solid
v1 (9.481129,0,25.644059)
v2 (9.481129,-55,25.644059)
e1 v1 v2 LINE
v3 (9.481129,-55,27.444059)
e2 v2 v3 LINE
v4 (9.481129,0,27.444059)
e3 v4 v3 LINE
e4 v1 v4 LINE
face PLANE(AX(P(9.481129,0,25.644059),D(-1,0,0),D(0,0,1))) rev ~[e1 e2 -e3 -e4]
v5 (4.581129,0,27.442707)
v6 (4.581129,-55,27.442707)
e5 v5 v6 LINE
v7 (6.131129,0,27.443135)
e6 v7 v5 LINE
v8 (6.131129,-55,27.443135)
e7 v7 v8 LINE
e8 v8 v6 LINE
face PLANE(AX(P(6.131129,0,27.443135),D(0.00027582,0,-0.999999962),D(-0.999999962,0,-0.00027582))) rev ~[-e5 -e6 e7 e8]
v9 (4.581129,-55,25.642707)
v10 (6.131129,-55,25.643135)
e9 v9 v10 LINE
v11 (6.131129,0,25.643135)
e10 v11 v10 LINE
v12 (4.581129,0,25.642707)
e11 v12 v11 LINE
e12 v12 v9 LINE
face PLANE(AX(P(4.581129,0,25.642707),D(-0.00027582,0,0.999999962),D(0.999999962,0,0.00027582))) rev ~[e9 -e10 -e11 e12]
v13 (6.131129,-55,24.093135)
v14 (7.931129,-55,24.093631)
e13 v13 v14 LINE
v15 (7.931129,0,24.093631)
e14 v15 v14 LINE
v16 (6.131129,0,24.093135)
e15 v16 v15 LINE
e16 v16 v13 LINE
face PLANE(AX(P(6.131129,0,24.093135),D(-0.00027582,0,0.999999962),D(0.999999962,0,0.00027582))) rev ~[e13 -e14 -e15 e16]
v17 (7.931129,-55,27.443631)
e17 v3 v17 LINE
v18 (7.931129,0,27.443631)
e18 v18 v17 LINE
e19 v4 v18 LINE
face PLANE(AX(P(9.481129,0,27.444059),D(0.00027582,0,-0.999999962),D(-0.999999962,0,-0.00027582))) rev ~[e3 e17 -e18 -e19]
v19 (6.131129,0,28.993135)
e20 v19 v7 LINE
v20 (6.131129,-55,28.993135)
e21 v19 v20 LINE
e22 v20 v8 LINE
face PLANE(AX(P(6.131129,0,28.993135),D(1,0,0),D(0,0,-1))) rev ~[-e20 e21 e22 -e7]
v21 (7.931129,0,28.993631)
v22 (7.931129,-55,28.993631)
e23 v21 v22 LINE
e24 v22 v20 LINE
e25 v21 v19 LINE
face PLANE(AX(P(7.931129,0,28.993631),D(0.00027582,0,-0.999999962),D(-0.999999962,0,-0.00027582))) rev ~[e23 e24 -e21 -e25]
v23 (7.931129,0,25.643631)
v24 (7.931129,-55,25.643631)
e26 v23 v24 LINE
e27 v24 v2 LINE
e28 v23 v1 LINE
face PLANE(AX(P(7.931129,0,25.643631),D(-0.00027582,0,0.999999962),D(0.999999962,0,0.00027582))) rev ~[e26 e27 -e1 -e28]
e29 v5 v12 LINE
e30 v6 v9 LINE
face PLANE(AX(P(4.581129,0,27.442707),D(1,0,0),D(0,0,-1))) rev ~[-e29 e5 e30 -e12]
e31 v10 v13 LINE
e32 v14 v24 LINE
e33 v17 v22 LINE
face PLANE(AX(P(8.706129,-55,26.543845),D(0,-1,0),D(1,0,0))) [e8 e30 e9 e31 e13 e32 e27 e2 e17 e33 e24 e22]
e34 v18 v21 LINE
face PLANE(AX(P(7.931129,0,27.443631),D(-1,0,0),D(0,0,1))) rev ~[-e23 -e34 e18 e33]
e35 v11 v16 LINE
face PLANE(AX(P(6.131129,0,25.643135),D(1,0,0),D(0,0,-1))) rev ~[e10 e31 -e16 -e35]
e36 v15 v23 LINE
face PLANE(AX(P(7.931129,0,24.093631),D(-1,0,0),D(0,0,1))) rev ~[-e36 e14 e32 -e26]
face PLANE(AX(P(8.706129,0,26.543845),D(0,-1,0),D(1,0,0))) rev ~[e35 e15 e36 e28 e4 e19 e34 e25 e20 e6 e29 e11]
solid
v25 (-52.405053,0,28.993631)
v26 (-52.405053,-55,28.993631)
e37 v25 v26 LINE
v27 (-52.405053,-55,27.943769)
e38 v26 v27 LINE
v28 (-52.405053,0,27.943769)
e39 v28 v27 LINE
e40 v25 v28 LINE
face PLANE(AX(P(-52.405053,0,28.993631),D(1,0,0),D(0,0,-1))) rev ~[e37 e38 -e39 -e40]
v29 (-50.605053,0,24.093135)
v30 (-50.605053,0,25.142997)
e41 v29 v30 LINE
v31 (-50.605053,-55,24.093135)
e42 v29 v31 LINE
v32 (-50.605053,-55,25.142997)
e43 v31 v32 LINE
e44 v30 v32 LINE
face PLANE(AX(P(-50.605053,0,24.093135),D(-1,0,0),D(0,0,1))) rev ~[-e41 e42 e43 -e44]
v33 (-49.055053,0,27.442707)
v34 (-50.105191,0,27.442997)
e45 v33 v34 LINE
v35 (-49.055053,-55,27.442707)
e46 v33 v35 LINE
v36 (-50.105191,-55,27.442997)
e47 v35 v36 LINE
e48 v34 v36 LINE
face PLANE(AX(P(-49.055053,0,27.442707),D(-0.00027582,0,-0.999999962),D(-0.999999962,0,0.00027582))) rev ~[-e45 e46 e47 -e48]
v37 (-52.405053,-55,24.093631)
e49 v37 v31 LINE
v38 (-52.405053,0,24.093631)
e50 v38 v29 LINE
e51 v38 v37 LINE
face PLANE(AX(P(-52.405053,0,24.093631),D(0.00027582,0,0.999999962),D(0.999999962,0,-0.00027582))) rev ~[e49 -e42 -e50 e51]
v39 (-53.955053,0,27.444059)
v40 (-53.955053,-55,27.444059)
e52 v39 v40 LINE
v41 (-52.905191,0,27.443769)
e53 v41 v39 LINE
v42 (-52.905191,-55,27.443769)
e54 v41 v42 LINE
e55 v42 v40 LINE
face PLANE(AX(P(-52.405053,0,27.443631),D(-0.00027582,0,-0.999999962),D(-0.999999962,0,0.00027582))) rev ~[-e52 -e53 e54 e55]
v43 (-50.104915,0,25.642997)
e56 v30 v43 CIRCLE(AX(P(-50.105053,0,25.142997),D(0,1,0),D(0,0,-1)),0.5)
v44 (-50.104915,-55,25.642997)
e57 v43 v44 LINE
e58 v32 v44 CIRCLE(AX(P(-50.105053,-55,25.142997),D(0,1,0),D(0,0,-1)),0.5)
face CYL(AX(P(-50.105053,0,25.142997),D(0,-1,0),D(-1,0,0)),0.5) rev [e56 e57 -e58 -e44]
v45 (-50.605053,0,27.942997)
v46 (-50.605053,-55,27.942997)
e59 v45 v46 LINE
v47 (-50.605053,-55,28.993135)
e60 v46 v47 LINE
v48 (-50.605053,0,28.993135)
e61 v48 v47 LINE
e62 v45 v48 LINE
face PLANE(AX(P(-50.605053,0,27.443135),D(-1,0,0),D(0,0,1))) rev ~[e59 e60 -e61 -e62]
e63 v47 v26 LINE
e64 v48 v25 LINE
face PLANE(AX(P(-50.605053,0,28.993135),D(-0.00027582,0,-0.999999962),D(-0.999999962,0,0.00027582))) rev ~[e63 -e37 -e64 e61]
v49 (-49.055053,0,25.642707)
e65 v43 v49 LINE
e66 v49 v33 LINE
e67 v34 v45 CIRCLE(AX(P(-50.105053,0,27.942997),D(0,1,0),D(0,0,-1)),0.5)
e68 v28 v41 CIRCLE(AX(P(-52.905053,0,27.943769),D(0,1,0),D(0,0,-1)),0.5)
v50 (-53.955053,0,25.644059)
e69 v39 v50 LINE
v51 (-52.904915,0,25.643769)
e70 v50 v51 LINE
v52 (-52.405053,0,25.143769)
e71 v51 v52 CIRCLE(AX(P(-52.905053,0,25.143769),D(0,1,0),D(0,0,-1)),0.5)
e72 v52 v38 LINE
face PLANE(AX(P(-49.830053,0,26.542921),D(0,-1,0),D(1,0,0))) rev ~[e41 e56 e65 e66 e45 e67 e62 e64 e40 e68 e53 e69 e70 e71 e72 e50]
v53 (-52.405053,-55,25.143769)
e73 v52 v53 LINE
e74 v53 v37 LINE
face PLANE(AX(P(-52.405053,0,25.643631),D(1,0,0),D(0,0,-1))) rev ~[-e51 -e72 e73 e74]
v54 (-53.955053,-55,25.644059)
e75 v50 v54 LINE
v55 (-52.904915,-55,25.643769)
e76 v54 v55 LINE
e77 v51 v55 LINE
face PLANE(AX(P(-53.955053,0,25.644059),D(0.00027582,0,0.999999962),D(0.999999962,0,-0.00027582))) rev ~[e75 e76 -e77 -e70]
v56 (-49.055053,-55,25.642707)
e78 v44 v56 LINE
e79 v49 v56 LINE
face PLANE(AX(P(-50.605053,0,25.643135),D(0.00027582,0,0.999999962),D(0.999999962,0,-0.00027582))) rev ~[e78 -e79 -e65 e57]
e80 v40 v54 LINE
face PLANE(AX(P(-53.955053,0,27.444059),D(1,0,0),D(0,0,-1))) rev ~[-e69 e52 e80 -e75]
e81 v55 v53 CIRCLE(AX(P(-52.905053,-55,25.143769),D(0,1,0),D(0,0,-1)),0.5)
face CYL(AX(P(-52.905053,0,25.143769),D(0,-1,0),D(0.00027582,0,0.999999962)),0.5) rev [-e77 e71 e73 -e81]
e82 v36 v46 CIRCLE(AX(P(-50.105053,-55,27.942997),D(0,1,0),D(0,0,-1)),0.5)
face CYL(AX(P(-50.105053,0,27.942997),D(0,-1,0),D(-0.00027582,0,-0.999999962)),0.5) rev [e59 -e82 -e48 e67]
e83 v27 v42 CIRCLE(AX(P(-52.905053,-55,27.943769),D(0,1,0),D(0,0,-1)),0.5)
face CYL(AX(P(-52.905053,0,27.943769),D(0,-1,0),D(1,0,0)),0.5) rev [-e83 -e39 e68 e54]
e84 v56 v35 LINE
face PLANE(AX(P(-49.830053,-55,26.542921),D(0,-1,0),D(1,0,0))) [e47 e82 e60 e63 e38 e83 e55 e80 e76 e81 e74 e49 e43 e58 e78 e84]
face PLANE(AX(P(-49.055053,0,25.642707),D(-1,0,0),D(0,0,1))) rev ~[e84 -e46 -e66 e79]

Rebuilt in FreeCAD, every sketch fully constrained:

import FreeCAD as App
import Part
import Sketcher
Q = App.Units.Quantity


def edges_at(feature, points):
    """Names of the edges that pass closest to the given points."""
    edges = feature.Shape.Edges
    near = lambda p: min(range(len(edges)), key=lambda i: edges[i].distToShape(Part.Vertex(*p))[0])
    return sorted({f"Edge{near(p) + 1}" for p in points})


def add_polygon(sketch, points):
    """Adds a closed chain of lines whose ends are joined by coincident constraints."""
    first, n = sketch.GeometryCount, len(points)
    for a, b in zip(points, points[1:] + points[:1]):
        sketch.addGeometry(Part.LineSegment(App.Vector(*a, 0), App.Vector(*b, 0)), False)
    for i in range(n):
        sketch.addConstraint(Sketcher.Constraint("Coincident", first + i, 2, first + (i + 1) % n, 1))

doc = App.newDocument("Part")
body = doc.addObject("PartDesign::Body", "Body")

sketch1 = body.newObject("Sketcher::SketchObject", "Sketch")
sketch1.AttachmentSupport = (doc.getObject("XZ_Plane"), [""])
sketch1.MapMode = "FlatFace"
add_polygon(sketch1, [(-49.1, 25.6), (-49.1, 27.4), (-50.6, 27.4), (-50.6, 29), (-52.4, 29), (-52.4, 27.4), (-54, 27.4), (-54, 25.6), (-52.4, 25.6), (-52.4, 24.1), (-50.6, 24.1), (-50.6, 25.6)])
sketch1.addConstraint(Sketcher.Constraint("Vertical", 0))
sketch1.addConstraint(Sketcher.Constraint("Vertical", 2))
sketch1.addConstraint(Sketcher.Constraint("Vertical", 4))
sketch1.addConstraint(Sketcher.Constraint("Vertical", 6))
sketch1.addConstraint(Sketcher.Constraint("Vertical", 8))
sketch1.addConstraint(Sketcher.Constraint("Vertical", 10))
sketch1.addConstraint(Sketcher.Constraint("Parallel", 1, 3))
sketch1.addConstraint(Sketcher.Constraint("Parallel", 3, 5))
sketch1.addConstraint(Sketcher.Constraint("Parallel", 5, 7))
sketch1.addConstraint(Sketcher.Constraint("Parallel", 7, 9))
sketch1.addConstraint(Sketcher.Constraint("Parallel", 9, 11))
sketch1.addConstraint(Sketcher.Constraint("Vertical", 4, 2, 7, 2))
sketch1.addConstraint(Sketcher.Constraint("Vertical", 2, 2, 9, 2))
sketch1.addConstraint(Sketcher.Constraint("Equal", 2, 4))
sketch1.addConstraint(Sketcher.Constraint("Equal", 0, 6))
sketch1.addConstraint(Sketcher.Constraint("Equal", 4, 8))
sketch1.addConstraint(Sketcher.Constraint("Equal", 1, 5))
sketch1.addConstraint(Sketcher.Constraint("DistanceY", 0, 1, 0, 2, Q("1.8 mm")))
sketch1.addConstraint(Sketcher.Constraint("Distance", 3, Q("1.8 mm")))
sketch1.addConstraint(Sketcher.Constraint("DistanceY", 2, 1, 2, 2, Q("1.55 mm")))
sketch1.addConstraint(Sketcher.Constraint("DistanceX", 5, 2, 0, 2, Q("4.9 mm")))
sketch1.addConstraint(Sketcher.Constraint("DistanceY", -1, 1, 3, 2, Q("28.993631 mm")))
sketch1.addConstraint(Sketcher.Constraint("DistanceY", -1, 1, 5, 2, Q("27.444059 mm")))
sketch1.addConstraint(Sketcher.Constraint("DistanceX", 0, 2, -1, 1, Q("49.055053 mm")))
pad1 = body.newObject("PartDesign::Pad", "Pad")
pad1.Profile = sketch1
pad1.Length = 55
doc.recompute()

fillet = body.newObject("PartDesign::Fillet", "Fillet")
fillet.Base = (pad1, edges_at(pad1, [
    (-50.605, -27.5, 27.443),
    (-50.605, -27.5, 25.643),
    (-52.405, -27.5, 27.444),
    (-52.405, -27.5, 25.644),
]))
fillet.Radius = 0.5
body2 = doc.addObject("PartDesign::Body", "Body001")

sketch2 = body2.newObject("Sketcher::SketchObject", "Sketch001")
sketch2.AttachmentSupport = (doc.getObject("XZ_Plane001"), [""])
sketch2.MapMode = "FlatFace"
add_polygon(sketch2, [(9.5, 25.6), (9.5, 27.4), (7.9, 27.4), (7.9, 29), (6.1, 29), (6.1, 27.4), (4.6, 27.4), (4.6, 25.6), (6.1, 25.6), (6.1, 24.1), (7.9, 24.1), (7.9, 25.6)])
sketch2.addConstraint(Sketcher.Constraint("Vertical", 0))
sketch2.addConstraint(Sketcher.Constraint("Vertical", 2))
sketch2.addConstraint(Sketcher.Constraint("Vertical", 4))
sketch2.addConstraint(Sketcher.Constraint("Vertical", 6))
sketch2.addConstraint(Sketcher.Constraint("Vertical", 8))
sketch2.addConstraint(Sketcher.Constraint("Vertical", 10))
sketch2.addConstraint(Sketcher.Constraint("Parallel", 1, 3))
sketch2.addConstraint(Sketcher.Constraint("Parallel", 3, 5))
sketch2.addConstraint(Sketcher.Constraint("Parallel", 5, 7))
sketch2.addConstraint(Sketcher.Constraint("Parallel", 7, 9))
sketch2.addConstraint(Sketcher.Constraint("Parallel", 9, 11))
sketch2.addConstraint(Sketcher.Constraint("Vertical", 4, 2, 7, 2))
sketch2.addConstraint(Sketcher.Constraint("Vertical", 2, 2, 9, 2))
sketch2.addConstraint(Sketcher.Constraint("Equal", 2, 4))
sketch2.addConstraint(Sketcher.Constraint("Equal", 0, 6))
sketch2.addConstraint(Sketcher.Constraint("Equal", 4, 8))
sketch2.addConstraint(Sketcher.Constraint("Equal", 1, 5))
sketch2.addConstraint(Sketcher.Constraint("DistanceY", 0, 1, 0, 2, Q("1.8 mm")))
sketch2.addConstraint(Sketcher.Constraint("Distance", 3, Q("1.8 mm")))
sketch2.addConstraint(Sketcher.Constraint("DistanceY", 2, 1, 2, 2, Q("1.55 mm")))
sketch2.addConstraint(Sketcher.Constraint("DistanceX", 5, 2, 0, 2, Q("4.9 mm")))
sketch2.addConstraint(Sketcher.Constraint("DistanceX", -1, 1, 0, 2, Q("9.481129 mm")))
sketch2.addConstraint(Sketcher.Constraint("DistanceY", -1, 1, 0, 2, Q("27.444059 mm")))
sketch2.addConstraint(Sketcher.Constraint("DistanceY", -1, 1, 1, 2, Q("27.443631 mm")))
pad2 = body2.newObject("PartDesign::Pad", "Pad001")
pad2.Profile = sketch2
pad2.Length = 55

doc.recompute()
